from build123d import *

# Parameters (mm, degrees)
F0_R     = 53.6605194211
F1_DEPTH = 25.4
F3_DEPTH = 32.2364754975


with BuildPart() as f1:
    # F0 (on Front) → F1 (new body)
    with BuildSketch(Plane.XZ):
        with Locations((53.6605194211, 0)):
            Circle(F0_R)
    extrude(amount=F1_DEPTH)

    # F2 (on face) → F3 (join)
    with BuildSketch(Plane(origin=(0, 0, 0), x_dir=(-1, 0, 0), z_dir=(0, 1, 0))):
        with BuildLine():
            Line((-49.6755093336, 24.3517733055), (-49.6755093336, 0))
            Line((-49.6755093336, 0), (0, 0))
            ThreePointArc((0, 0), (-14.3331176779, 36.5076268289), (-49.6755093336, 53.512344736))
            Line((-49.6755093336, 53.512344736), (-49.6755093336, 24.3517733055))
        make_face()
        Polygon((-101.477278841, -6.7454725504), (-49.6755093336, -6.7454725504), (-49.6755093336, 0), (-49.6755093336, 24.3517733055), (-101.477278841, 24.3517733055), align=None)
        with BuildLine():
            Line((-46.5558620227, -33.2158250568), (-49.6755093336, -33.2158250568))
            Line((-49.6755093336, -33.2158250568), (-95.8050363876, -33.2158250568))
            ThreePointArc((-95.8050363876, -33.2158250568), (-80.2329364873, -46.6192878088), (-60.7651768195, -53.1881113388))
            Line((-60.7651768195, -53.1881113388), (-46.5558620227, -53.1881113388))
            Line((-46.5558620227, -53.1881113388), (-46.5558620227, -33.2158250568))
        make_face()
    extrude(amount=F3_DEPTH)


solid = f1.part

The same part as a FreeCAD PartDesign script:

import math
import FreeCAD as App
import Part
import Sketcher

V = App.Vector
Q = App.Units.Quantity

doc = App.newDocument("Part")
body = doc.addObject("PartDesign::Body", "Body")

# Sketch on XZ plane
sketch1 = doc.addObject("Sketcher::SketchObject", "Sketch")
body.addObject(sketch1)
sketch1.AttachmentSupport = (doc.XZ_Plane, [""])
sketch1.MapMode = "FlatFace"
sketch1.addGeometry(Part.Circle(V(54, 0, 0), V(0, 0, 1), 54), False)
sketch1.addConstraint(Sketcher.Constraint("PointOnObject", 0, 3, -1))
sketch1.addConstraint(Sketcher.Constraint("Diameter", 0, Q("107.321039 mm")))
sketch1.addConstraint(Sketcher.Constraint("DistanceX", -1, 1, 0, 3, Q("53.660519 mm")))
pad1 = doc.addObject("PartDesign::Pad", "Pad")
body.addObject(pad1)
pad1.Profile = sketch1
pad1.Length = Q("1 in")

# Sketch on XZ plane
sketch2 = doc.addObject("Sketcher::SketchObject", "Sketch001")
body.addObject(sketch2)
sketch2.AttachmentSupport = (doc.XZ_Plane, [""])
sketch2.MapMode = "FlatFace"
sketch2.addGeometry(Part.LineSegment(V(50, 0, 0), V(0, 0, 0)), False)
sketch2.addGeometry(Part.ArcOfCircle(Part.Circle(V(54, 0, 0), V(0, 0, 1), 54), math.radians(94), math.radians(180)), False)
sketch2.addGeometry(Part.LineSegment(V(50, 54, 0), V(50, 24, 0)), False)
sketch2.addGeometry(Part.LineSegment(V(50, 24, 0), V(101, 24, 0)), False)
sketch2.addGeometry(Part.LineSegment(V(101, 24, 0), V(101, -7, 0)), False)
sketch2.addGeometry(Part.LineSegment(V(101, -7, 0), V(50, -7, 0)), False)
sketch2.addGeometry(Part.LineSegment(V(50, -7, 0), V(50, 0, 0)), False)
sketch2.addGeometry(Part.LineSegment(V(47, -33, 0), V(96, -33, 0)), False)
sketch2.addGeometry(Part.ArcOfCircle(Part.Circle(V(54, 0, 0), V(0, 0, 1), 54), math.radians(-82), math.radians(-38)), False)
sketch2.addGeometry(Part.LineSegment(V(61, -53, 0), V(47, -53, 0)), False)
sketch2.addGeometry(Part.LineSegment(V(47, -53, 0), V(47, -33, 0)), False)
sketch2.addConstraint(Sketcher.Constraint("Coincident", 0, 2, 1, 2))
sketch2.addConstraint(Sketcher.Constraint("Coincident", 1, 1, 2, 1))
sketch2.addConstraint(Sketcher.Constraint("Coincident", 2, 2, 3, 1))
sketch2.addConstraint(Sketcher.Constraint("Coincident", 3, 2, 4, 1))
sketch2.addConstraint(Sketcher.Constraint("Coincident", 4, 2, 5, 1))
sketch2.addConstraint(Sketcher.Constraint("Coincident", 5, 2, 6, 1))
sketch2.addConstraint(Sketcher.Constraint("Coincident", 6, 2, 0, 1))
sketch2.addConstraint(Sketcher.Constraint("Coincident", 7, 2, 8, 2))
sketch2.addConstraint(Sketcher.Constraint("Coincident", 8, 1, 9, 1))
sketch2.addConstraint(Sketcher.Constraint("Coincident", 9, 2, 10, 1))
sketch2.addConstraint(Sketcher.Constraint("Coincident", 10, 2, 7, 1))
sketch2.addConstraint(Sketcher.Constraint("Horizontal", 0))
sketch2.addConstraint(Sketcher.Constraint("Vertical", 2))
sketch2.addConstraint(Sketcher.Constraint("Horizontal", 3))
sketch2.addConstraint(Sketcher.Constraint("Vertical", 4))
sketch2.addConstraint(Sketcher.Constraint("Horizontal", 5))
sketch2.addConstraint(Sketcher.Constraint("Vertical", 6))
sketch2.addConstraint(Sketcher.Constraint("Horizontal", 7))
sketch2.addConstraint(Sketcher.Constraint("Horizontal", 9))
sketch2.addConstraint(Sketcher.Constraint("Vertical", 10))
sketch2.addConstraint(Sketcher.Constraint("Coincident", 0, 2, -1, 1))
sketch2.addConstraint(Sketcher.Constraint("Coincident", 8, 3, 1, 3))
sketch2.addConstraint(Sketcher.Constraint("Equal", 1, 8))
sketch2.addConstraint(Sketcher.Constraint("PointOnObject", 1, 3, -1))
sketch2.addConstraint(Sketcher.Constraint("Vertical", 2, 2, 5, 2))
sketch2.addConstraint(Sketcher.Constraint("Radius", 1, Q("53.660519 mm")))
sketch2.addConstraint(Sketcher.Constraint("DistanceX", 0, 2, 0, 1, Q("49.675509 mm")))
sketch2.addConstraint(Sketcher.Constraint("DistanceX", 3, 1, 3, 2, Q("51.80177 mm")))
sketch2.addConstraint(Sketcher.Constraint("DistanceY", 2, 2, 2, 1, Q("29.160571 mm")))
sketch2.addConstraint(Sketcher.Constraint("DistanceX", 7, 1, 7, 2, Q("49.249174 mm")))
sketch2.addConstraint(Sketcher.Constraint("DistanceX", 9, 2, 9, 1, Q("14.209315 mm")))
sketch2.addConstraint(Sketcher.Constraint("DistanceY", 4, 2, 4, 1, Q("31.097246 mm")))
sketch2.addConstraint(Sketcher.Constraint("DistanceY", 10, 1, 10, 2, Q("19.972286 mm")))
pad2 = doc.addObject("PartDesign::Pad", "Pad001")
body.addObject(pad2)
pad2.Profile = sketch2
pad2.Length = 32.236475
pad2.Reversed = True

doc.recompute()
